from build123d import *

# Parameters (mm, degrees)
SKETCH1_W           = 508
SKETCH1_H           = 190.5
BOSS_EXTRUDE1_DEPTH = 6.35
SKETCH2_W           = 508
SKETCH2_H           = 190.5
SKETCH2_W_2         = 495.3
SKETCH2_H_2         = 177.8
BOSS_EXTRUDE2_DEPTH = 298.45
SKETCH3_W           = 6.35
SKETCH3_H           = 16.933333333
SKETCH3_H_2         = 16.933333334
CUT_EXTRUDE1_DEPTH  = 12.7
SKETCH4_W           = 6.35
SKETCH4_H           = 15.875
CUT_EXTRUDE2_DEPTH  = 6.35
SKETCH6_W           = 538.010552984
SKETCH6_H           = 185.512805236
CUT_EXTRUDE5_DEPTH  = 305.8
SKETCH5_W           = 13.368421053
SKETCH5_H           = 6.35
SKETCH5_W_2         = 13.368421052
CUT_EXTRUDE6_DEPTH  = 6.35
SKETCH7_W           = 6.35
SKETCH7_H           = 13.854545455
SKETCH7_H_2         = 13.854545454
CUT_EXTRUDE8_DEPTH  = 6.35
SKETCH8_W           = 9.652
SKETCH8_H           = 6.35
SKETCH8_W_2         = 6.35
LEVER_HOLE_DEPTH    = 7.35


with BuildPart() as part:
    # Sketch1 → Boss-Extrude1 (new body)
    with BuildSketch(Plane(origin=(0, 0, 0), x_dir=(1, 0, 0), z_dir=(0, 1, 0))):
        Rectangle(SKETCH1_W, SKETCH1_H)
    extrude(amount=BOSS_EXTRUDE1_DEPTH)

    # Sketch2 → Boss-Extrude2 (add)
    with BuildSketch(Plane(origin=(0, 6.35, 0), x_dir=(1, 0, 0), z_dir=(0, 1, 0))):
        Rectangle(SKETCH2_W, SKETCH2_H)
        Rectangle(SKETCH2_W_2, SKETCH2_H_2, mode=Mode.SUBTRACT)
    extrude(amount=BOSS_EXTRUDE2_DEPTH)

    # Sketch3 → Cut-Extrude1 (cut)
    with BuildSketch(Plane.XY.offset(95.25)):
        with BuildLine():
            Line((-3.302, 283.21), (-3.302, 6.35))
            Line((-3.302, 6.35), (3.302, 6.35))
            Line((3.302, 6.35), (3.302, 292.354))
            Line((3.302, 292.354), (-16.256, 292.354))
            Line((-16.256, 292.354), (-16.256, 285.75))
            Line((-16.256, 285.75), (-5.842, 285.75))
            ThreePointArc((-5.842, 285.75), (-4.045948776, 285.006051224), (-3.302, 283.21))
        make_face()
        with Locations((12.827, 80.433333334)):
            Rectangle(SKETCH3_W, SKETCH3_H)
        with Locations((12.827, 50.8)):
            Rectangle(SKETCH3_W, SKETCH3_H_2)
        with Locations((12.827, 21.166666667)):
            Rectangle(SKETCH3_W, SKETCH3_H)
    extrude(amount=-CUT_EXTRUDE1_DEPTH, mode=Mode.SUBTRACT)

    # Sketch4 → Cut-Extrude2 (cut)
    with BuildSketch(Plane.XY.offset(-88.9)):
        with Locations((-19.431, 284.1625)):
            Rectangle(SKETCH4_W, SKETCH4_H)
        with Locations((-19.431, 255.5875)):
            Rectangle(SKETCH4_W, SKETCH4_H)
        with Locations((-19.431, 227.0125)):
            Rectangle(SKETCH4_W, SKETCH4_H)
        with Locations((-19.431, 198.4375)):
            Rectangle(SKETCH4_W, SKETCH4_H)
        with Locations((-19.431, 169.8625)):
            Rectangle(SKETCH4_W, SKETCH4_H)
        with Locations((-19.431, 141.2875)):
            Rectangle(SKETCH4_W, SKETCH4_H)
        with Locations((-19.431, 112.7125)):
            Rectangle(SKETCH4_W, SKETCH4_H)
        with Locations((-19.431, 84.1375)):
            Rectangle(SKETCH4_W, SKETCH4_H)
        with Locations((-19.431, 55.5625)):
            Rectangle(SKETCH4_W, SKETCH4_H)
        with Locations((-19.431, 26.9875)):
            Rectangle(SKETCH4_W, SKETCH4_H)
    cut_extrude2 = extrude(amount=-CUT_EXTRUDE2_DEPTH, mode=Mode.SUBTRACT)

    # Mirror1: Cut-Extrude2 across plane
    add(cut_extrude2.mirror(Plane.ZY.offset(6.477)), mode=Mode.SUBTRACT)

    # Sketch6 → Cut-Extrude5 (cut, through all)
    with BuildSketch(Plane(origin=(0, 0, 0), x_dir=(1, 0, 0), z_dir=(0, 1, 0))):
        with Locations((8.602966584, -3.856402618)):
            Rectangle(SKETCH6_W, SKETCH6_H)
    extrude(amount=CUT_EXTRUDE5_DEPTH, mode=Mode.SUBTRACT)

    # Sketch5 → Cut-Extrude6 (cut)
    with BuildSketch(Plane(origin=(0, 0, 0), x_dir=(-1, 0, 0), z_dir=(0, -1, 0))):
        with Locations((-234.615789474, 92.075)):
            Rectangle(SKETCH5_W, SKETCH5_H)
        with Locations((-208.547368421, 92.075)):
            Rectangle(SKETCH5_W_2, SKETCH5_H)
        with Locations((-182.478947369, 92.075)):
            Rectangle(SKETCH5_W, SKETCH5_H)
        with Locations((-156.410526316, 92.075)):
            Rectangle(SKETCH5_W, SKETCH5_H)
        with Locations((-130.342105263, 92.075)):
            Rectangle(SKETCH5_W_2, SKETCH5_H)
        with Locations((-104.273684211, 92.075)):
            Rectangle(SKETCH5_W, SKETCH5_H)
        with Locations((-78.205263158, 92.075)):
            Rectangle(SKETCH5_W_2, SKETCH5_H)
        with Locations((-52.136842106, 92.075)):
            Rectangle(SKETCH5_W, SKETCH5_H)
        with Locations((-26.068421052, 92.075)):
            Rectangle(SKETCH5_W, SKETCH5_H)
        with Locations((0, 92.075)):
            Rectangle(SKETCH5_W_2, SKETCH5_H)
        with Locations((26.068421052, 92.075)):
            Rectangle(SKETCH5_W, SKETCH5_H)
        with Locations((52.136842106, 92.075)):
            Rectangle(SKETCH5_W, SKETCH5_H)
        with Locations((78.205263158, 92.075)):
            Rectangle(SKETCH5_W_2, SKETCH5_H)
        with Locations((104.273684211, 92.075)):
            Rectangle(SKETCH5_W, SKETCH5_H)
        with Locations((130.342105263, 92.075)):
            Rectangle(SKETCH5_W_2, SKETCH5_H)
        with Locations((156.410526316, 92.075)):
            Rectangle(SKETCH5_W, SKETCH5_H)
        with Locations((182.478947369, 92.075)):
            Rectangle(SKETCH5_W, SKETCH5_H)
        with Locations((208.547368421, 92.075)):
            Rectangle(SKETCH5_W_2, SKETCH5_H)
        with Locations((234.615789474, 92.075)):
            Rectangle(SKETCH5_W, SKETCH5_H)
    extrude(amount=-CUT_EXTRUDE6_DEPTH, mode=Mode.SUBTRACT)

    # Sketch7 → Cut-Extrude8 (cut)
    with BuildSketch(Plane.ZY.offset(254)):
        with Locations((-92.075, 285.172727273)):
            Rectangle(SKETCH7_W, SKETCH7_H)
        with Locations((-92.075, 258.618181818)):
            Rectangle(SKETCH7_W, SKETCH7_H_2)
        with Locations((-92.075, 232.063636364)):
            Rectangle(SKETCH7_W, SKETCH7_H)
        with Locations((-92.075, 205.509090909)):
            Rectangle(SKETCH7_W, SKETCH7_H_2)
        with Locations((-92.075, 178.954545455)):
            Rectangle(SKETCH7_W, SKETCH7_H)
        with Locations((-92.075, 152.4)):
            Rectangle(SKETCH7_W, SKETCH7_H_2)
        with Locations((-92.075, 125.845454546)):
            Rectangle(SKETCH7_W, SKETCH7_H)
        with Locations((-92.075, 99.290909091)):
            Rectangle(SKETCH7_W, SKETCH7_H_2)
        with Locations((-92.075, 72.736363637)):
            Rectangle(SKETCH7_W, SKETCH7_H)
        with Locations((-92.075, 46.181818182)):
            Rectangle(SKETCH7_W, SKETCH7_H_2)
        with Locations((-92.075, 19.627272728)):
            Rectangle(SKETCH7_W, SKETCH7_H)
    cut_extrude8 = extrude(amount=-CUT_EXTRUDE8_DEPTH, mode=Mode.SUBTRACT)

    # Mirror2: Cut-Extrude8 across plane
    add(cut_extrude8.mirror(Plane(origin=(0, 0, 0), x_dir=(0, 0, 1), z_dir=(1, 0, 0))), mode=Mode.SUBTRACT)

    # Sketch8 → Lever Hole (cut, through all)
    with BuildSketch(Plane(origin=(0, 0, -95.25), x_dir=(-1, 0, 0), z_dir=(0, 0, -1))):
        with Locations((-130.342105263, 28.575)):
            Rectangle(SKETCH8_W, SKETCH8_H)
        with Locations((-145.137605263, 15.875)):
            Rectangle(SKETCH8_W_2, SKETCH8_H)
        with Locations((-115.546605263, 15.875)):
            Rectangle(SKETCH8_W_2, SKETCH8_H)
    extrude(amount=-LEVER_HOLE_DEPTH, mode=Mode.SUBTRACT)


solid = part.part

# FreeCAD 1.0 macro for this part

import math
import FreeCAD as App
import Part
import Sketcher
from FreeCAD import Vector
Q = App.Units.Quantity

doc = App.newDocument("Part")
body = doc.addObject("PartDesign::Body", "Body")

# Sketch on XZ plane
sketch1 = body.newObject("Sketcher::SketchObject", "Sketch")
sketch1.AttachmentSupport = (doc.getObject("XZ_Plane"), [""])
sketch1.MapMode = "FlatFace"
sketch1.addGeometry([
    Part.LineSegment(Vector(-254, -95, 0), Vector(-254, 95, 0)),
    Part.LineSegment(Vector(-254, 95, 0), Vector(254, 95, 0)),
    Part.LineSegment(Vector(254, 95, 0), Vector(254, -95, 0)),
    Part.LineSegment(Vector(254, -95, 0), Vector(-254, -95, 0)),
], False)
sketch1.addConstraint([
    Sketcher.Constraint("Coincident", 0, 2, 1, 1),
    Sketcher.Constraint("Coincident", 1, 2, 2, 1),
    Sketcher.Constraint("Coincident", 2, 2, 3, 1),
    Sketcher.Constraint("Coincident", 3, 2, 0, 1),
    Sketcher.Constraint("Vertical", 0),
    Sketcher.Constraint("Horizontal", 1),
    Sketcher.Constraint("Vertical", 2),
    Sketcher.Constraint("Horizontal", 3),
    Sketcher.Constraint("Symmetric", 0, 2, 2, 2, -1, 1),
    Sketcher.Constraint("DistanceX", 1, 1, 1, 2, Q("20 in")),
    Sketcher.Constraint("DistanceY", 0, 1, 0, 2, Q("7.5 in")),
])
pad1 = body.newObject("PartDesign::Pad", "Pad")
pad1.Profile = sketch1
pad1.Length = Q("0.25 in")
pad1.Reversed = True

# Sketch on XZ plane
sketch2 = body.newObject("Sketcher::SketchObject", "Sketch001")
sketch2.AttachmentSupport = (doc.getObject("XZ_Plane"), [""])
sketch2.MapMode = "FlatFace"
sketch2.AttachmentOffset = App.Placement(Vector(0, 0, -0.25 * 25.4), App.Rotation())
sketch2.addGeometry([
    Part.LineSegment(Vector(-254, -95, 0), Vector(-254, 95, 0)),  # 0
    Part.LineSegment(Vector(-254, 95, 0), Vector(254, 95, 0)),  # 1
    Part.LineSegment(Vector(254, 95, 0), Vector(254, -95, 0)),  # 2
    Part.LineSegment(Vector(254, -95, 0), Vector(-254, -95, 0)),  # 3
    Part.LineSegment(Vector(248, 89, 0), Vector(-248, 89, 0)),  # 4
    Part.LineSegment(Vector(-248, 89, 0), Vector(-248, -89, 0)),  # 5
    Part.LineSegment(Vector(-248, -89, 0), Vector(248, -89, 0)),  # 6
    Part.LineSegment(Vector(248, -89, 0), Vector(248, 89, 0)),  # 7
], False)
sketch2.addConstraint([
    Sketcher.Constraint("Coincident", 0, 2, 1, 1),
    Sketcher.Constraint("Coincident", 1, 2, 2, 1),
    Sketcher.Constraint("Coincident", 2, 2, 3, 1),
    Sketcher.Constraint("Coincident", 3, 2, 0, 1),
    Sketcher.Constraint("Coincident", 4, 2, 5, 1),
    Sketcher.Constraint("Coincident", 5, 2, 6, 1),
    Sketcher.Constraint("Coincident", 6, 2, 7, 1),
    Sketcher.Constraint("Coincident", 7, 2, 4, 1),
    Sketcher.Constraint("Vertical", 0),
    Sketcher.Constraint("Horizontal", 1),
    Sketcher.Constraint("Vertical", 2),
    Sketcher.Constraint("Horizontal", 3),
    Sketcher.Constraint("Horizontal", 4),
    Sketcher.Constraint("Vertical", 5),
    Sketcher.Constraint("Horizontal", 6),
    Sketcher.Constraint("Vertical", 7),
    Sketcher.Constraint("Symmetric", 0, 2, 2, 2, -1, 1),
    Sketcher.Constraint("Symmetric", 4, 2, 6, 2, -1, 1),
    Sketcher.Constraint("DistanceX", 1, 1, 1, 2, Q("20 in")),
    Sketcher.Constraint("DistanceY", 5, 2, 5, 1, Q("7 in")),
    Sketcher.Constraint("DistanceX", 4, 2, 4, 1, Q("19.5 in")),
    Sketcher.Constraint("DistanceY", 0, 1, 0, 2, Q("7.5 in")),
])
pad2 = body.newObject("PartDesign::Pad", "Pad001")
pad2.Profile = sketch2
pad2.Length = Q("11.75 in")
pad2.Reversed = True

# Sketch on XY plane
sketch3 = body.newObject("Sketcher::SketchObject", "Sketch002")
sketch3.AttachmentSupport = (doc.getObject("XY_Plane"), [""])
sketch3.MapMode = "FlatFace"
sketch3.AttachmentOffset = App.Placement(Vector(0, 0, 3.75 * 25.4), App.Rotation())
sketch3.addGeometry([
    Part.LineSegment(Vector(-3.3, 283.2, 0), Vector(-3.3, 6.3, 0)),  # 0
    Part.LineSegment(Vector(-3.3, 6.3, 0), Vector(3.3, 6.3, 0)),  # 1
    Part.LineSegment(Vector(3.3, 6.3, 0), Vector(3.3, 292.4, 0)),  # 2
    Part.LineSegment(Vector(3.3, 292.4, 0), Vector(-16.3, 292.4, 0)),  # 3
    Part.LineSegment(Vector(-16.3, 292.4, 0), Vector(-16.3, 285.8, 0)),  # 4
    Part.LineSegment(Vector(-16.3, 285.8, 0), Vector(-5.8, 285.8, 0)),  # 5
    Part.ArcOfCircle(Part.Circle(Vector(-5.8, 283.2, 0), Vector(0, 0, 1), 2.5), math.radians(0), math.radians(90)),  # 6
    Part.LineSegment(Vector(9.7, 88.9, 0), Vector(9.7, 72, 0)),  # 7
    Part.LineSegment(Vector(9.7, 72, 0), Vector(16, 72, 0)),  # 8
    Part.LineSegment(Vector(16, 72, 0), Vector(16, 88.9, 0)),  # 9
    Part.LineSegment(Vector(16, 88.9, 0), Vector(9.7, 88.9, 0)),  # 10
    Part.LineSegment(Vector(9.7, 59.3, 0), Vector(9.7, 42.3, 0)),  # 11
    Part.LineSegment(Vector(9.7, 42.3, 0), Vector(16, 42.3, 0)),  # 12
    Part.LineSegment(Vector(16, 42.3, 0), Vector(16, 59.3, 0)),  # 13
    Part.LineSegment(Vector(16, 59.3, 0), Vector(9.7, 59.3, 0)),  # 14
    Part.LineSegment(Vector(9.7, 29.6, 0), Vector(9.7, 12.7, 0)),  # 15
    Part.LineSegment(Vector(9.7, 12.7, 0), Vector(16, 12.7, 0)),  # 16
    Part.LineSegment(Vector(16, 12.7, 0), Vector(16, 29.6, 0)),  # 17
    Part.LineSegment(Vector(16, 29.6, 0), Vector(9.7, 29.6, 0)),  # 18
], False)
sketch3.addConstraint([
    Sketcher.Constraint("Coincident", 0, 2, 1, 1),
    Sketcher.Constraint("Coincident", 1, 2, 2, 1),
    Sketcher.Constraint("Coincident", 2, 2, 3, 1),
    Sketcher.Constraint("Coincident", 3, 2, 4, 1),
    Sketcher.Constraint("Coincident", 4, 2, 5, 1),
    Sketcher.Constraint("Tangent", 5, 2, 6, 2),
    Sketcher.Constraint("Tangent", 6, 1, 0, 1),
    Sketcher.Constraint("Coincident", 7, 2, 8, 1),
    Sketcher.Constraint("Coincident", 8, 2, 9, 1),
    Sketcher.Constraint("Coincident", 9, 2, 10, 1),
    Sketcher.Constraint("Coincident", 10, 2, 7, 1),
    Sketcher.Constraint("Coincident", 11, 2, 12, 1),
    Sketcher.Constraint("Coincident", 12, 2, 13, 1),
    Sketcher.Constraint("Coincident", 13, 2, 14, 1),
    Sketcher.Constraint("Coincident", 14, 2, 11, 1),
    Sketcher.Constraint("Coincident", 15, 2, 16, 1),
    Sketcher.Constraint("Coincident", 16, 2, 17, 1),
    Sketcher.Constraint("Coincident", 17, 2, 18, 1),
    Sketcher.Constraint("Coincident", 18, 2, 15, 1),
    Sketcher.Constraint("Vertical", 0),
    Sketcher.Constraint("Horizontal", 1),
    Sketcher.Constraint("Vertical", 2),
    Sketcher.Constraint("Horizontal", 3),
    Sketcher.Constraint("Vertical", 4),
    Sketcher.Constraint("Horizontal", 5),
    Sketcher.Constraint("Vertical", 7),
    Sketcher.Constraint("Horizontal", 8),
    Sketcher.Constraint("Vertical", 9),
    Sketcher.Constraint("Horizontal", 10),
    Sketcher.Constraint("Vertical", 11),
    Sketcher.Constraint("Horizontal", 12),
    Sketcher.Constraint("Vertical", 13),
    Sketcher.Constraint("Horizontal", 14),
    Sketcher.Constraint("Vertical", 15),
    Sketcher.Constraint("Horizontal", 16),
    Sketcher.Constraint("Vertical", 17),
    Sketcher.Constraint("Horizontal", 18),
    Sketcher.Constraint("Vertical", 10, 2, 11, 2),
    Sketcher.Constraint("Vertical", 9, 2, 12, 2),
    Sketcher.Constraint("Vertical", 14, 2, 15, 2),
    Sketcher.Constraint("Vertical", 13, 2, 16, 2),
    Sketcher.Constraint("Equal", 1, 4),
    Sketcher.Constraint("Equal", 9, 11),
    Sketcher.Constraint("Equal", 13, 15),
    Sketcher.Constraint("Radius", 6, Q("0.1 in")),
    Sketcher.Constraint("DistanceY", 0, 2, 0, 1, Q("10.9 in")),
    Sketcher.Constraint("DistanceX", 1, 1, 1, 2, Q("0.26 in")),
    Sketcher.Constraint("DistanceX", 3, 2, 3, 1, Q("0.77 in")),
    Sketcher.Constraint("DistanceX", 8, 1, 8, 2, Q("0.25 in")),
    Sketcher.Constraint("DistanceY", -1, 1, 9, 2, Q("3.5 in")),
    Sketcher.Constraint("DistanceY", -1, 1, 15, 2, Q("0.5 in")),
    Sketcher.Constraint("DistanceX", 1, 2, 8, 2, Q("0.5 in")),
    Sketcher.Constraint("DistanceY", 13, 2, 8, 2, Q("0.5 in")),
    Sketcher.Constraint("DistanceY", 17, 2, 12, 2, Q("0.5 in")),
    Sketcher.Constraint("DistanceX", 6, 3, -1, 1, Q("0.23 in")),
    Sketcher.Constraint("DistanceY", -1, 1, 6, 3, Q("11.15 in")),
])
pocket1 = body.newObject("PartDesign::Pocket", "Pocket")
pocket1.Profile = sketch3
pocket1.Length = Q("0.5 in")

# Sketch on XY plane
sketch4 = body.newObject("Sketcher::SketchObject", "Sketch003")
sketch4.AttachmentSupport = (doc.getObject("XY_Plane"), [""])
sketch4.MapMode = "FlatFace"
sketch4.AttachmentOffset = App.Placement(Vector(0, 0, -3.5 * 25.4), App.Rotation())
sketch4.addGeometry([
    Part.LineSegment(Vector(-23, 292, 0), Vector(-23, 276, 0)),  # 0
    Part.LineSegment(Vector(-23, 276, 0), Vector(-16, 276, 0)),  # 1
    Part.LineSegment(Vector(-16, 276, 0), Vector(-16, 292, 0)),  # 2
    Part.LineSegment(Vector(-16, 292, 0), Vector(-23, 292, 0)),  # 3
    Part.LineSegment(Vector(-23, 264, 0), Vector(-23, 248, 0)),  # 4
    Part.LineSegment(Vector(-23, 248, 0), Vector(-16, 248, 0)),  # 5
    Part.LineSegment(Vector(-16, 248, 0), Vector(-16, 264, 0)),  # 6
    Part.LineSegment(Vector(-16, 264, 0), Vector(-23, 264, 0)),  # 7
    Part.LineSegment(Vector(-23, 235, 0), Vector(-23, 219, 0)),  # 8
    Part.LineSegment(Vector(-23, 219, 0), Vector(-16, 219, 0)),  # 9
    Part.LineSegment(Vector(-16, 219, 0), Vector(-16, 235, 0)),  # 10
    Part.LineSegment(Vector(-16, 235, 0), Vector(-23, 235, 0)),  # 11
    Part.LineSegment(Vector(-23, 206, 0), Vector(-23, 190, 0)),  # 12
    Part.LineSegment(Vector(-23, 190, 0), Vector(-16, 190, 0)),  # 13
    Part.LineSegment(Vector(-16, 190, 0), Vector(-16, 206, 0)),  # 14
    Part.LineSegment(Vector(-16, 206, 0), Vector(-23, 206, 0)),  # 15
    Part.LineSegment(Vector(-23, 178, 0), Vector(-23, 162, 0)),  # 16
    Part.LineSegment(Vector(-23, 162, 0), Vector(-16, 162, 0)),  # 17
    Part.LineSegment(Vector(-16, 162, 0), Vector(-16, 178, 0)),  # 18
    Part.LineSegment(Vector(-16, 178, 0), Vector(-23, 178, 0)),  # 19
    Part.LineSegment(Vector(-23, 149, 0), Vector(-23, 133, 0)),  # 20
    Part.LineSegment(Vector(-23, 133, 0), Vector(-16, 133, 0)),  # 21
    Part.LineSegment(Vector(-16, 133, 0), Vector(-16, 149, 0)),  # 22
    Part.LineSegment(Vector(-16, 149, 0), Vector(-23, 149, 0)),  # 23
    Part.LineSegment(Vector(-23, 121, 0), Vector(-23, 105, 0)),  # 24
    Part.LineSegment(Vector(-23, 105, 0), Vector(-16, 105, 0)),  # 25
    Part.LineSegment(Vector(-16, 105, 0), Vector(-16, 121, 0)),  # 26
    Part.LineSegment(Vector(-16, 121, 0), Vector(-23, 121, 0)),  # 27
    Part.LineSegment(Vector(-23, 92, 0), Vector(-23, 76, 0)),  # 28
    Part.LineSegment(Vector(-23, 76, 0), Vector(-16, 76, 0)),  # 29
    Part.LineSegment(Vector(-16, 76, 0), Vector(-16, 92, 0)),  # 30
    Part.LineSegment(Vector(-16, 92, 0), Vector(-23, 92, 0)),  # 31
    Part.LineSegment(Vector(-23, 64, 0), Vector(-23, 48, 0)),  # 32
    Part.LineSegment(Vector(-23, 48, 0), Vector(-16, 48, 0)),  # 33
    Part.LineSegment(Vector(-16, 48, 0), Vector(-16, 64, 0)),  # 34
    Part.LineSegment(Vector(-16, 64, 0), Vector(-23, 64, 0)),  # 35
    Part.LineSegment(Vector(-23, 35, 0), Vector(-23, 19, 0)),  # 36
    Part.LineSegment(Vector(-23, 19, 0), Vector(-16, 19, 0)),  # 37
    Part.LineSegment(Vector(-16, 19, 0), Vector(-16, 35, 0)),  # 38
    Part.LineSegment(Vector(-16, 35, 0), Vector(-23, 35, 0)),  # 39
], False)
sketch4.addConstraint([
    Sketcher.Constraint("Coincident", 0, 2, 1, 1),
    Sketcher.Constraint("Coincident", 1, 2, 2, 1),
    Sketcher.Constraint("Coincident", 2, 2, 3, 1),
    Sketcher.Constraint("Coincident", 3, 2, 0, 1),
    Sketcher.Constraint("Coincident", 4, 2, 5, 1),
    Sketcher.Constraint("Coincident", 5, 2, 6, 1),
    Sketcher.Constraint("Coincident", 6, 2, 7, 1),
    Sketcher.Constraint("Coincident", 7, 2, 4, 1),
    Sketcher.Constraint("Coincident", 8, 2, 9, 1),
    Sketcher.Constraint("Coincident", 9, 2, 10, 1),
    Sketcher.Constraint("Coincident", 10, 2, 11, 1),
    Sketcher.Constraint("Coincident", 11, 2, 8, 1),
    Sketcher.Constraint("Coincident", 12, 2, 13, 1),
    Sketcher.Constraint("Coincident", 13, 2, 14, 1),
    Sketcher.Constraint("Coincident", 14, 2, 15, 1),
    Sketcher.Constraint("Coincident", 15, 2, 12, 1),
    Sketcher.Constraint("Coincident", 16, 2, 17, 1),
    Sketcher.Constraint("Coincident", 17, 2, 18, 1),
    Sketcher.Constraint("Coincident", 18, 2, 19, 1),
    Sketcher.Constraint("Coincident", 19, 2, 16, 1),
    Sketcher.Constraint("Coincident", 20, 2, 21, 1),
    Sketcher.Constraint("Coincident", 21, 2, 22, 1),
    Sketcher.Constraint("Coincident", 22, 2, 23, 1),
    Sketcher.Constraint("Coincident", 23, 2, 20, 1),
    Sketcher.Constraint("Coincident", 24, 2, 25, 1),
    Sketcher.Constraint("Coincident", 25, 2, 26, 1),
    Sketcher.Constraint("Coincident", 26, 2, 27, 1),
    Sketcher.Constraint("Coincident", 27, 2, 24, 1),
    Sketcher.Constraint("Coincident", 28, 2, 29, 1),
    Sketcher.Constraint("Coincident", 29, 2, 30, 1),
    Sketcher.Constraint("Coincident", 30, 2, 31, 1),
    Sketcher.Constraint("Coincident", 31, 2, 28, 1),
    Sketcher.Constraint("Coincident", 32, 2, 33, 1),
    Sketcher.Constraint("Coincident", 33, 2, 34, 1),
    Sketcher.Constraint("Coincident", 34, 2, 35, 1),
    Sketcher.Constraint("Coincident", 35, 2, 32, 1),
    Sketcher.Constraint("Coincident", 36, 2, 37, 1),
    Sketcher.Constraint("Coincident", 37, 2, 38, 1),
    Sketcher.Constraint("Coincident", 38, 2, 39, 1),
    Sketcher.Constraint("Coincident", 39, 2, 36, 1),
    Sketcher.Constraint("Vertical", 0),
    Sketcher.Constraint("Horizontal", 1),
    Sketcher.Constraint("Vertical", 2),
    Sketcher.Constraint("Horizontal", 3),
    Sketcher.Constraint("Vertical", 4),
    Sketcher.Constraint("Horizontal", 5),
    Sketcher.Constraint("Vertical", 6),
    Sketcher.Constraint("Horizontal", 7),
    Sketcher.Constraint("Vertical", 8),
    Sketcher.Constraint("Horizontal", 9),
    Sketcher.Constraint("Vertical", 10),
    Sketcher.Constraint("Horizontal", 11),
    Sketcher.Constraint("Vertical", 12),
    Sketcher.Constraint("Horizontal", 13),
    Sketcher.Constraint("Vertical", 14),
    Sketcher.Constraint("Horizontal", 15),
    Sketcher.Constraint("Vertical", 16),
    Sketcher.Constraint("Horizontal", 17),
    Sketcher.Constraint("Vertical", 18),
    Sketcher.Constraint("Horizontal", 19),
    Sketcher.Constraint("Vertical", 20),
    Sketcher.Constraint("Horizontal", 21),
    Sketcher.Constraint("Vertical", 22),
    Sketcher.Constraint("Horizontal", 23),
    Sketcher.Constraint("Vertical", 24),
    Sketcher.Constraint("Horizontal", 25),
    Sketcher.Constraint("Vertical", 26),
    Sketcher.Constraint("Horizontal", 27),
    Sketcher.Constraint("Vertical", 28),
    Sketcher.Constraint("Horizontal", 29),
    Sketcher.Constraint("Vertical", 30),
    Sketcher.Constraint("Horizontal", 31),
    Sketcher.Constraint("Vertical", 32),
    Sketcher.Constraint("Horizontal", 33),
    Sketcher.Constraint("Vertical", 34),
    Sketcher.Constraint("Horizontal", 35),
    Sketcher.Constraint("Vertical", 36),
    Sketcher.Constraint("Horizontal", 37),
    Sketcher.Constraint("Vertical", 38),
    Sketcher.Constraint("Horizontal", 39),
    Sketcher.Constraint("Vertical", 3, 2, 4, 2),
    Sketcher.Constraint("Vertical", 2, 2, 5, 2),
    Sketcher.Constraint("Vertical", 7, 2, 8, 2),
    Sketcher.Constraint("Vertical", 6, 2, 9, 2),
    Sketcher.Constraint("Vertical", 11, 2, 12, 2),
    Sketcher.Constraint("Vertical", 10, 2, 13, 2),
    Sketcher.Constraint("Vertical", 15, 2, 16, 2),
    Sketcher.Constraint("Vertical", 14, 2, 17, 2),
    Sketcher.Constraint("Vertical", 19, 2, 20, 2),
    Sketcher.Constraint("Vertical", 18, 2, 21, 2),
    Sketcher.Constraint("Vertical", 23, 2, 24, 2),
    Sketcher.Constraint("Vertical", 22, 2, 25, 2),
    Sketcher.Constraint("Vertical", 27, 2, 28, 2),
    Sketcher.Constraint("Vertical", 26, 2, 29, 2),
    Sketcher.Constraint("Vertical", 31, 2, 32, 2),
    Sketcher.Constraint("Vertical", 30, 2, 33, 2),
    Sketcher.Constraint("Vertical", 35, 2, 36, 2),
    Sketcher.Constraint("Vertical", 34, 2, 37, 2),
    Sketcher.Constraint("Equal", 2, 4),
    Sketcher.Constraint("Equal", 6, 8),
    Sketcher.Constraint("Equal", 10, 12),
    Sketcher.Constraint("Equal", 14, 16),
    Sketcher.Constraint("Equal", 18, 20),
    Sketcher.Constraint("Equal", 22, 24),
    Sketcher.Constraint("Equal", 26, 28),
    Sketcher.Constraint("Equal", 30, 32),
    Sketcher.Constraint("Equal", 34, 36),
    Sketcher.Constraint("DistanceY", -1, 1, 18, 2, Q("7 in")),
    Sketcher.Constraint("DistanceY", -1, 1, 28, 2, Q("3 in")),
    Sketcher.Constraint("DistanceX", 1, 1, 1, 2, Q("0.25 in")),
    Sketcher.Constraint("DistanceY", -1, 1, 2, 2, Q("11.5 in")),
    Sketcher.Constraint("DistanceY", -1, 1, 12, 2, Q("7.5 in")),
    Sketcher.Constraint("DistanceY", -1, 1, 34, 2, Q("2.5 in")),
    Sketcher.Constraint("DistanceY", 6, 2, 1, 2, Q("0.5 in")),
    Sketcher.Constraint("DistanceY", 10, 2, 5, 2, Q("0.5 in")),
    Sketcher.Constraint("DistanceY", 14, 2, 9, 2, Q("0.5 in")),
    Sketcher.Constraint("DistanceY", 22, 2, 17, 2, Q("0.5 in")),
    Sketcher.Constraint("DistanceY", 26, 2, 21, 2, Q("0.5 in")),
    Sketcher.Constraint("DistanceY", 38, 2, 33, 2, Q("0.5 in")),
    Sketcher.Constraint("DistanceX", 0, 2, -1, 1, Q("0.89 in")),
])
pocket2 = body.newObject("PartDesign::Pocket", "Pocket001")
pocket2.Profile = sketch4
pocket2.Length = Q("0.25 in")
doc.recompute()

datumplane = body.newObject("PartDesign::Plane", "DatumPlane")
datumplane.AttachmentSupport = (doc.getObject("YZ_Plane"), [""])
datumplane.MapMode = "FlatFace"
datumplane.AttachmentOffset = App.Placement(Vector(0, 0, -0.255 * 25.4), App.Rotation())
mirrored = body.newObject("PartDesign::Mirrored", "Mirrored")
mirrored.Originals = [pocket2]
mirrored.MirrorPlane = (datumplane, [""])
body.Tip = mirrored

# Sketch on XZ plane
sketch5 = body.newObject("Sketcher::SketchObject", "Sketch004")
sketch5.AttachmentSupport = (doc.getObject("XZ_Plane"), [""])
sketch5.MapMode = "FlatFace"
sketch5.addGeometry([
    Part.LineSegment(Vector(-260, -89, 0), Vector(-260, 97, 0)),
    Part.LineSegment(Vector(-260, 97, 0), Vector(278, 97, 0)),
    Part.LineSegment(Vector(278, 97, 0), Vector(278, -89, 0)),
    Part.LineSegment(Vector(278, -89, 0), Vector(-260, -89, 0)),
], False)
sketch5.addConstraint([
    Sketcher.Constraint("Coincident", 0, 2, 1, 1),
    Sketcher.Constraint("Coincident", 1, 2, 2, 1),
    Sketcher.Constraint("Coincident", 2, 2, 3, 1),
    Sketcher.Constraint("Coincident", 3, 2, 0, 1),
    Sketcher.Constraint("Vertical", 0),
    Sketcher.Constraint("Horizontal", 1),
    Sketcher.Constraint("Vertical", 2),
    Sketcher.Constraint("Horizontal", 3),
    Sketcher.Constraint("DistanceY", 2, 2, -1, 1, Q("3.5 in")),
    Sketcher.Constraint("DistanceX", 1, 1, 1, 2, 538.010553),
    Sketcher.Constraint("DistanceY", 0, 1, 0, 2, 185.512805),
    Sketcher.Constraint("DistanceX", 0, 2, -1, 1, 260.40231),
])
pocket3 = body.newObject("PartDesign::Pocket", "Pocket002")
pocket3.Profile = sketch5
pocket3.Type = "ThroughAll"

# Sketch on XZ plane
sketch6 = body.newObject("Sketcher::SketchObject", "Sketch005")
sketch6.AttachmentSupport = (doc.getObject("XZ_Plane"), [""])
sketch6.MapMode = "FlatFace"
sketch6.addGeometry([
    Part.LineSegment(Vector(241, -95, 0), Vector(241, -89, 0)),  # 0
    Part.LineSegment(Vector(241, -89, 0), Vector(228, -89, 0)),  # 1
    Part.LineSegment(Vector(228, -89, 0), Vector(228, -95, 0)),  # 2
    Part.LineSegment(Vector(228, -95, 0), Vector(241, -95, 0)),  # 3
    Part.LineSegment(Vector(215, -95, 0), Vector(215, -89, 0)),  # 4
    Part.LineSegment(Vector(215, -89, 0), Vector(202, -89, 0)),  # 5
    Part.LineSegment(Vector(202, -89, 0), Vector(202, -95, 0)),  # 6
    Part.LineSegment(Vector(202, -95, 0), Vector(215, -95, 0)),  # 7
    Part.LineSegment(Vector(189, -95, 0), Vector(189, -89, 0)),  # 8
    Part.LineSegment(Vector(189, -89, 0), Vector(176, -89, 0)),  # 9
    Part.LineSegment(Vector(176, -89, 0), Vector(176, -95, 0)),  # 10
    Part.LineSegment(Vector(176, -95, 0), Vector(189, -95, 0)),  # 11
    Part.LineSegment(Vector(163, -95, 0), Vector(163, -89, 0)),  # 12
    Part.LineSegment(Vector(163, -89, 0), Vector(150, -89, 0)),  # 13
    Part.LineSegment(Vector(150, -89, 0), Vector(150, -95, 0)),  # 14
    Part.LineSegment(Vector(150, -95, 0), Vector(163, -95, 0)),  # 15
    Part.LineSegment(Vector(137, -95, 0), Vector(137, -89, 0)),  # 16
    Part.LineSegment(Vector(137, -89, 0), Vector(124, -89, 0)),  # 17
    Part.LineSegment(Vector(124, -89, 0), Vector(124, -95, 0)),  # 18
    Part.LineSegment(Vector(124, -95, 0), Vector(137, -95, 0)),  # 19
    Part.LineSegment(Vector(111, -95, 0), Vector(111, -89, 0)),  # 20
    Part.LineSegment(Vector(111, -89, 0), Vector(98, -89, 0)),  # 21
    Part.LineSegment(Vector(98, -89, 0), Vector(98, -95, 0)),  # 22
    Part.LineSegment(Vector(98, -95, 0), Vector(111, -95, 0)),  # 23
    Part.LineSegment(Vector(85, -95, 0), Vector(85, -89, 0)),  # 24
    Part.LineSegment(Vector(85, -89, 0), Vector(72, -89, 0)),  # 25
    Part.LineSegment(Vector(72, -89, 0), Vector(72, -95, 0)),  # 26
    Part.LineSegment(Vector(72, -95, 0), Vector(85, -95, 0)),  # 27
    Part.LineSegment(Vector(59, -95, 0), Vector(59, -89, 0)),  # 28
    Part.LineSegment(Vector(59, -89, 0), Vector(45, -89, 0)),  # 29
    Part.LineSegment(Vector(45, -89, 0), Vector(45, -95, 0)),  # 30
    Part.LineSegment(Vector(45, -95, 0), Vector(59, -95, 0)),  # 31
    Part.LineSegment(Vector(33, -95, 0), Vector(33, -89, 0)),  # 32
    Part.LineSegment(Vector(33, -89, 0), Vector(19, -89, 0)),  # 33
    Part.LineSegment(Vector(19, -89, 0), Vector(19, -95, 0)),  # 34
    Part.LineSegment(Vector(19, -95, 0), Vector(33, -95, 0)),  # 35
    Part.LineSegment(Vector(7, -95, 0), Vector(7, -89, 0)),  # 36
    Part.LineSegment(Vector(7, -89, 0), Vector(-7, -89, 0)),  # 37
    Part.LineSegment(Vector(-7, -89, 0), Vector(-7, -95, 0)),  # 38
    Part.LineSegment(Vector(-7, -95, 0), Vector(7, -95, 0)),  # 39
    Part.LineSegment(Vector(-19, -95, 0), Vector(-19, -89, 0)),  # 40
    Part.LineSegment(Vector(-19, -89, 0), Vector(-33, -89, 0)),  # 41
    Part.LineSegment(Vector(-33, -89, 0), Vector(-33, -95, 0)),  # 42
    Part.LineSegment(Vector(-33, -95, 0), Vector(-19, -95, 0)),  # 43
    Part.LineSegment(Vector(-45, -95, 0), Vector(-45, -89, 0)),  # 44
    Part.LineSegment(Vector(-45, -89, 0), Vector(-59, -89, 0)),  # 45
    Part.LineSegment(Vector(-59, -89, 0), Vector(-59, -95, 0)),  # 46
    Part.LineSegment(Vector(-59, -95, 0), Vector(-45, -95, 0)),  # 47
    Part.LineSegment(Vector(-72, -95, 0), Vector(-72, -89, 0)),  # 48
    Part.LineSegment(Vector(-72, -89, 0), Vector(-85, -89, 0)),  # 49
    Part.LineSegment(Vector(-85, -89, 0), Vector(-85, -95, 0)),  # 50
    Part.LineSegment(Vector(-85, -95, 0), Vector(-72, -95, 0)),  # 51
    Part.LineSegment(Vector(-98, -95, 0), Vector(-98, -89, 0)),  # 52
    Part.LineSegment(Vector(-98, -89, 0), Vector(-111, -89, 0)),  # 53
    Part.LineSegment(Vector(-111, -89, 0), Vector(-111, -95, 0)),  # 54
    Part.LineSegment(Vector(-111, -95, 0), Vector(-98, -95, 0)),  # 55
    Part.LineSegment(Vector(-124, -95, 0), Vector(-124, -89, 0)),  # 56
    Part.LineSegment(Vector(-124, -89, 0), Vector(-137, -89, 0)),  # 57
    Part.LineSegment(Vector(-137, -89, 0), Vector(-137, -95, 0)),  # 58
    Part.LineSegment(Vector(-137, -95, 0), Vector(-124, -95, 0)),  # 59
    Part.LineSegment(Vector(-150, -95, 0), Vector(-150, -89, 0)),  # 60
    Part.LineSegment(Vector(-150, -89, 0), Vector(-163, -89, 0)),  # 61
    Part.LineSegment(Vector(-163, -89, 0), Vector(-163, -95, 0)),  # 62
    Part.LineSegment(Vector(-163, -95, 0), Vector(-150, -95, 0)),  # 63
    Part.LineSegment(Vector(-176, -95, 0), Vector(-176, -89, 0)),  # 64
    Part.LineSegment(Vector(-176, -89, 0), Vector(-189, -89, 0)),  # 65
    Part.LineSegment(Vector(-189, -89, 0), Vector(-189, -95, 0)),  # 66
    Part.LineSegment(Vector(-189, -95, 0), Vector(-176, -95, 0)),  # 67
    Part.LineSegment(Vector(-202, -95, 0), Vector(-202, -89, 0)),  # 68
    Part.LineSegment(Vector(-202, -89, 0), Vector(-215, -89, 0)),  # 69
    Part.LineSegment(Vector(-215, -89, 0), Vector(-215, -95, 0)),  # 70
    Part.LineSegment(Vector(-215, -95, 0), Vector(-202, -95, 0)),  # 71
    Part.LineSegment(Vector(-228, -95, 0), Vector(-228, -89, 0)),  # 72
    Part.LineSegment(Vector(-228, -89, 0), Vector(-241, -89, 0)),  # 73
    Part.LineSegment(Vector(-241, -89, 0), Vector(-241, -95, 0)),  # 74
    Part.LineSegment(Vector(-241, -95, 0), Vector(-228, -95, 0)),  # 75
], False)
sketch6.addConstraint([
    Sketcher.Constraint("Coincident", 0, 2, 1, 1),
    Sketcher.Constraint("Coincident", 1, 2, 2, 1),
    Sketcher.Constraint("Coincident", 2, 2, 3, 1),
    Sketcher.Constraint("Coincident", 3, 2, 0, 1),
    Sketcher.Constraint("Coincident", 4, 2, 5, 1),
    Sketcher.Constraint("Coincident", 5, 2, 6, 1),
    Sketcher.Constraint("Coincident", 6, 2, 7, 1),
    Sketcher.Constraint("Coincident", 7, 2, 4, 1),
    Sketcher.Constraint("Coincident", 8, 2, 9, 1),
    Sketcher.Constraint("Coincident", 9, 2, 10, 1),
    Sketcher.Constraint("Coincident", 10, 2, 11, 1),
    Sketcher.Constraint("Coincident", 11, 2, 8, 1),
    Sketcher.Constraint("Coincident", 12, 2, 13, 1),
    Sketcher.Constraint("Coincident", 13, 2, 14, 1),
    Sketcher.Constraint("Coincident", 14, 2, 15, 1),
    Sketcher.Constraint("Coincident", 15, 2, 12, 1),
    Sketcher.Constraint("Coincident", 16, 2, 17, 1),
    Sketcher.Constraint("Coincident", 17, 2, 18, 1),
    Sketcher.Constraint("Coincident", 18, 2, 19, 1),
    Sketcher.Constraint("Coincident", 19, 2, 16, 1),
    Sketcher.Constraint("Coincident", 20, 2, 21, 1),
    Sketcher.Constraint("Coincident", 21, 2, 22, 1),
    Sketcher.Constraint("Coincident", 22, 2, 23, 1),
    Sketcher.Constraint("Coincident", 23, 2, 20, 1),
    Sketcher.Constraint("Coincident", 24, 2, 25, 1),
    Sketcher.Constraint("Coincident", 25, 2, 26, 1),
    Sketcher.Constraint("Coincident", 26, 2, 27, 1),
    Sketcher.Constraint("Coincident", 27, 2, 24, 1),
    Sketcher.Constraint("Coincident", 28, 2, 29, 1),
    Sketcher.Constraint("Coincident", 29, 2, 30, 1),
    Sketcher.Constraint("Coincident", 30, 2, 31, 1),
    Sketcher.Constraint("Coincident", 31, 2, 28, 1),
    Sketcher.Constraint("Coincident", 32, 2, 33, 1),
    Sketcher.Constraint("Coincident", 33, 2, 34, 1),
    Sketcher.Constraint("Coincident", 34, 2, 35, 1),
    Sketcher.Constraint("Coincident", 35, 2, 32, 1),
    Sketcher.Constraint("Coincident", 36, 2, 37, 1),
    Sketcher.Constraint("Coincident", 37, 2, 38, 1),
    Sketcher.Constraint("Coincident", 38, 2, 39, 1),
    Sketcher.Constraint("Coincident", 39, 2, 36, 1),
    Sketcher.Constraint("Coincident", 40, 2, 41, 1),
    Sketcher.Constraint("Coincident", 41, 2, 42, 1),
    Sketcher.Constraint("Coincident", 42, 2, 43, 1),
    Sketcher.Constraint("Coincident", 43, 2, 40, 1),
    Sketcher.Constraint("Coincident", 44, 2, 45, 1),
    Sketcher.Constraint("Coincident", 45, 2, 46, 1),
    Sketcher.Constraint("Coincident", 46, 2, 47, 1),
    Sketcher.Constraint("Coincident", 47, 2, 44, 1),
    Sketcher.Constraint("Coincident", 48, 2, 49, 1),
    Sketcher.Constraint("Coincident", 49, 2, 50, 1),
    Sketcher.Constraint("Coincident", 50, 2, 51, 1),
    Sketcher.Constraint("Coincident", 51, 2, 48, 1),
    Sketcher.Constraint("Coincident", 52, 2, 53, 1),
    Sketcher.Constraint("Coincident", 53, 2, 54, 1),
    Sketcher.Constraint("Coincident", 54, 2, 55, 1),
    Sketcher.Constraint("Coincident", 55, 2, 52, 1),
    Sketcher.Constraint("Coincident", 56, 2, 57, 1),
    Sketcher.Constraint("Coincident", 57, 2, 58, 1),
    Sketcher.Constraint("Coincident", 58, 2, 59, 1),
    Sketcher.Constraint("Coincident", 59, 2, 56, 1),
    Sketcher.Constraint("Coincident", 60, 2, 61, 1),
    Sketcher.Constraint("Coincident", 61, 2, 62, 1),
    Sketcher.Constraint("Coincident", 62, 2, 63, 1),
    Sketcher.Constraint("Coincident", 63, 2, 60, 1),
    Sketcher.Constraint("Coincident", 64, 2, 65, 1),
    Sketcher.Constraint("Coincident", 65, 2, 66, 1),
    Sketcher.Constraint("Coincident", 66, 2, 67, 1),
    Sketcher.Constraint("Coincident", 67, 2, 64, 1),
    Sketcher.Constraint("Coincident", 68, 2, 69, 1),
    Sketcher.Constraint("Coincident", 69, 2, 70, 1),
    Sketcher.Constraint("Coincident", 70, 2, 71, 1),
    Sketcher.Constraint("Coincident", 71, 2, 68, 1),
    Sketcher.Constraint("Coincident", 72, 2, 73, 1),
    Sketcher.Constraint("Coincident", 73, 2, 74, 1),
    Sketcher.Constraint("Coincident", 74, 2, 75, 1),
    Sketcher.Constraint("Coincident", 75, 2, 72, 1),
    Sketcher.Constraint("Vertical", 0),
    Sketcher.Constraint("Horizontal", 1),
    Sketcher.Constraint("Vertical", 2),
    Sketcher.Constraint("Horizontal", 3),
    Sketcher.Constraint("Vertical", 4),
    Sketcher.Constraint("Horizontal", 5),
    Sketcher.Constraint("Vertical", 6),
    Sketcher.Constraint("Horizontal", 7),
    Sketcher.Constraint("Vertical", 8),
    Sketcher.Constraint("Horizontal", 9),
    Sketcher.Constraint("Vertical", 10),
    Sketcher.Constraint("Horizontal", 11),
    Sketcher.Constraint("Vertical", 12),
    Sketcher.Constraint("Horizontal", 13),
    Sketcher.Constraint("Vertical", 14),
    Sketcher.Constraint("Horizontal", 15),
    Sketcher.Constraint("Vertical", 16),
    Sketcher.Constraint("Horizontal", 17),
    Sketcher.Constraint("Vertical", 18),
    Sketcher.Constraint("Horizontal", 19),
    Sketcher.Constraint("Vertical", 20),
    Sketcher.Constraint("Horizontal", 21),
    Sketcher.Constraint("Vertical", 22),
    Sketcher.Constraint("Horizontal", 23),
    Sketcher.Constraint("Vertical", 24),
    Sketcher.Constraint("Horizontal", 25),
    Sketcher.Constraint("Vertical", 26),
    Sketcher.Constraint("Horizontal", 27),
    Sketcher.Constraint("Vertical", 28),
    Sketcher.Constraint("Horizontal", 29),
    Sketcher.Constraint("Vertical", 30),
    Sketcher.Constraint("Horizontal", 31),
    Sketcher.Constraint("Vertical", 32),
    Sketcher.Constraint("Horizontal", 33),
    Sketcher.Constraint("Vertical", 34),
    Sketcher.Constraint("Horizontal", 35),
    Sketcher.Constraint("Vertical", 36),
    Sketcher.Constraint("Horizontal", 37),
    Sketcher.Constraint("Vertical", 38),
    Sketcher.Constraint("Horizontal", 39),
    Sketcher.Constraint("Vertical", 40),
    Sketcher.Constraint("Horizontal", 41),
    Sketcher.Constraint("Vertical", 42),
    Sketcher.Constraint("Horizontal", 43),
    Sketcher.Constraint("Vertical", 44),
    Sketcher.Constraint("Horizontal", 45),
    Sketcher.Constraint("Vertical", 46),
    Sketcher.Constraint("Horizontal", 47),
    Sketcher.Constraint("Vertical", 48),
    Sketcher.Constraint("Horizontal", 49),
    Sketcher.Constraint("Vertical", 50),
    Sketcher.Constraint("Horizontal", 51),
    Sketcher.Constraint("Vertical", 52),
    Sketcher.Constraint("Horizontal", 53),
    Sketcher.Constraint("Vertical", 54),
    Sketcher.Constraint("Horizontal", 55),
    Sketcher.Constraint("Vertical", 56),
    Sketcher.Constraint("Horizontal", 57),
    Sketcher.Constraint("Vertical", 58),
    Sketcher.Constraint("Horizontal", 59),
    Sketcher.Constraint("Vertical", 60),
    Sketcher.Constraint("Horizontal", 61),
    Sketcher.Constraint("Vertical", 62),
    Sketcher.Constraint("Horizontal", 63),
    Sketcher.Constraint("Vertical", 64),
    Sketcher.Constraint("Horizontal", 65),
    Sketcher.Constraint("Vertical", 66),
    Sketcher.Constraint("Horizontal", 67),
    Sketcher.Constraint("Vertical", 68),
    Sketcher.Constraint("Horizontal", 69),
    Sketcher.Constraint("Vertical", 70),
    Sketcher.Constraint("Horizontal", 71),
    Sketcher.Constraint("Vertical", 72),
    Sketcher.Constraint("Horizontal", 73),
    Sketcher.Constraint("Vertical", 74),
    Sketcher.Constraint("Horizontal", 75),
    Sketcher.Constraint("Symmetric", 33, 2, 40, 2, -2),
    Sketcher.Constraint("Symmetric", 35, 2, 42, 2, -2),
    Sketcher.Constraint("Symmetric", 29, 2, 44, 2, -2),
    Sketcher.Constraint("Symmetric", 31, 2, 46, 2, -2),
    Sketcher.Constraint("Symmetric", 25, 2, 48, 2, -2),
    Sketcher.Constraint("Symmetric", 27, 2, 50, 2, -2),
    Sketcher.Constraint("Symmetric", 21, 2, 52, 2, -2),
    Sketcher.Constraint("Symmetric", 23, 2, 54, 2, -2),
    Sketcher.Constraint("Symmetric", 17, 2, 56, 2, -2),
    Sketcher.Constraint("Symmetric", 19, 2, 58, 2, -2),
    Sketcher.Constraint("Symmetric", 13, 2, 60, 2, -2),
    Sketcher.Constraint("Symmetric", 15, 2, 62, 2, -2),
    Sketcher.Constraint("Symmetric", 9, 2, 64, 2, -2),
    Sketcher.Constraint("Symmetric", 11, 2, 66, 2, -2),
    Sketcher.Constraint("Symmetric", 5, 2, 68, 2, -2),
    Sketcher.Constraint("Symmetric", 7, 2, 70, 2, -2),
    Sketcher.Constraint("Symmetric", 1, 2, 72, 2, -2),
    Sketcher.Constraint("Symmetric", 3, 2, 74, 2, -2),
    Sketcher.Constraint("Horizontal", 1, 2, 4, 2),
    Sketcher.Constraint("Horizontal", 3, 2, 6, 2),
    Sketcher.Constraint("Horizontal", 5, 2, 8, 2),
    Sketcher.Constraint("Horizontal", 7, 2, 10, 2),
    Sketcher.Constraint("Horizontal", 9, 2, 12, 2),
    Sketcher.Constraint("Horizontal", 11, 2, 14, 2),
    Sketcher.Constraint("Horizontal", 13, 2, 16, 2),
    Sketcher.Constraint("Horizontal", 15, 2, 18, 2),
    Sketcher.Constraint("Horizontal", 17, 2, 20, 2),
    Sketcher.Constraint("Horizontal", 19, 2, 22, 2),
    Sketcher.Constraint("Horizontal", 21, 2, 24, 2),
    Sketcher.Constraint("Horizontal", 23, 2, 26, 2),
    Sketcher.Constraint("Horizontal", 25, 2, 28, 2),
    Sketcher.Constraint("Horizontal", 27, 2, 30, 2),
    Sketcher.Constraint("Horizontal", 29, 2, 32, 2),
    Sketcher.Constraint("Horizontal", 31, 2, 34, 2),
    Sketcher.Constraint("Horizontal", 33, 2, 36, 2),
    Sketcher.Constraint("Horizontal", 35, 2, 38, 2),
    Sketcher.Constraint("Equal", 3, 5),
    Sketcher.Constraint("Equal", 7, 9),
    Sketcher.Constraint("Equal", 11, 13),
    Sketcher.Constraint("Equal", 15, 17),
    Sketcher.Constraint("Equal", 19, 21),
    Sketcher.Constraint("Equal", 23, 25),
    Sketcher.Constraint("Equal", 27, 29),
    Sketcher.Constraint("Equal", 31, 33),
    Sketcher.Constraint("Equal", 35, 37),
    Sketcher.Constraint("DistanceY", 0, 1, 0, 2, Q("0.25 in")),
    Sketcher.Constraint("DistanceX", -1, 1, 0, 2, Q("9.5 in")),
    Sketcher.Constraint("DistanceY", 0, 2, -1, 1, Q("3.5 in")),
    Sketcher.Constraint("DistanceX", 1, 2, 1, 1, 13.368421),
    Sketcher.Constraint("DistanceX", -1, 1, 4, 2, 215.231579),
    Sketcher.Constraint("DistanceX", -1, 1, 29, 2, 45.452632),
    Sketcher.Constraint("DistanceX", -1, 1, 32, 2, 32.752632),
    Sketcher.Constraint("DistanceX", -1, 1, 36, 2, 6.684211),
    Sketcher.Constraint("DistanceX", -1, 1, 8, 2, 189.163158),
    Sketcher.Constraint("DistanceX", -1, 1, 12, 2, 163.094737),
    Sketcher.Constraint("DistanceX", -1, 1, 16, 2, 137.026316),
    Sketcher.Constraint("DistanceX", -1, 1, 20, 2, 110.957895),
    Sketcher.Constraint("DistanceX", -1, 1, 24, 2, 84.889474),
])
pocket4 = body.newObject("PartDesign::Pocket", "Pocket003")
pocket4.Profile = sketch6
pocket4.Length = Q("0.25 in")

# Sketch on YZ plane
sketch7 = body.newObject("Sketcher::SketchObject", "Sketch006")
sketch7.AttachmentSupport = (doc.getObject("YZ_Plane"), [""])
sketch7.MapMode = "FlatFace"
sketch7.AttachmentOffset = App.Placement(Vector(0, 0, -10 * 25.4), App.Rotation())
sketch7.addGeometry([
    Part.LineSegment(Vector(292, -95, 0), Vector(278, -95, 0)),  # 0
    Part.LineSegment(Vector(278, -95, 0), Vector(278, -89, 0)),  # 1
    Part.LineSegment(Vector(278, -89, 0), Vector(292, -89, 0)),  # 2
    Part.LineSegment(Vector(292, -89, 0), Vector(292, -95, 0)),  # 3
    Part.LineSegment(Vector(266, -95, 0), Vector(252, -95, 0)),  # 4
    Part.LineSegment(Vector(252, -95, 0), Vector(252, -89, 0)),  # 5
    Part.LineSegment(Vector(252, -89, 0), Vector(266, -89, 0)),  # 6
    Part.LineSegment(Vector(266, -89, 0), Vector(266, -95, 0)),  # 7
    Part.LineSegment(Vector(239, -95, 0), Vector(225, -95, 0)),  # 8
    Part.LineSegment(Vector(225, -95, 0), Vector(225, -89, 0)),  # 9
    Part.LineSegment(Vector(225, -89, 0), Vector(239, -89, 0)),  # 10
    Part.LineSegment(Vector(239, -89, 0), Vector(239, -95, 0)),  # 11
    Part.LineSegment(Vector(212, -95, 0), Vector(199, -95, 0)),  # 12
    Part.LineSegment(Vector(199, -95, 0), Vector(199, -89, 0)),  # 13
    Part.LineSegment(Vector(199, -89, 0), Vector(212, -89, 0)),  # 14
    Part.LineSegment(Vector(212, -89, 0), Vector(212, -95, 0)),  # 15
    Part.LineSegment(Vector(186, -95, 0), Vector(172, -95, 0)),  # 16
    Part.LineSegment(Vector(172, -95, 0), Vector(172, -89, 0)),  # 17
    Part.LineSegment(Vector(172, -89, 0), Vector(186, -89, 0)),  # 18
    Part.LineSegment(Vector(186, -89, 0), Vector(186, -95, 0)),  # 19
    Part.LineSegment(Vector(159, -95, 0), Vector(145, -95, 0)),  # 20
    Part.LineSegment(Vector(145, -95, 0), Vector(145, -89, 0)),  # 21
    Part.LineSegment(Vector(145, -89, 0), Vector(159, -89, 0)),  # 22
    Part.LineSegment(Vector(159, -89, 0), Vector(159, -95, 0)),  # 23
    Part.LineSegment(Vector(133, -95, 0), Vector(119, -95, 0)),  # 24
    Part.LineSegment(Vector(119, -95, 0), Vector(119, -89, 0)),  # 25
    Part.LineSegment(Vector(119, -89, 0), Vector(133, -89, 0)),  # 26
    Part.LineSegment(Vector(133, -89, 0), Vector(133, -95, 0)),  # 27
    Part.LineSegment(Vector(106, -95, 0), Vector(92, -95, 0)),  # 28
    Part.LineSegment(Vector(92, -95, 0), Vector(92, -89, 0)),  # 29
    Part.LineSegment(Vector(92, -89, 0), Vector(106, -89, 0)),  # 30
    Part.LineSegment(Vector(106, -89, 0), Vector(106, -95, 0)),  # 31
    Part.LineSegment(Vector(80, -95, 0), Vector(66, -95, 0)),  # 32
    Part.LineSegment(Vector(66, -95, 0), Vector(66, -89, 0)),  # 33
    Part.LineSegment(Vector(66, -89, 0), Vector(80, -89, 0)),  # 34
    Part.LineSegment(Vector(80, -89, 0), Vector(80, -95, 0)),  # 35
    Part.LineSegment(Vector(53, -95, 0), Vector(39, -95, 0)),  # 36
    Part.LineSegment(Vector(39, -95, 0), Vector(39, -89, 0)),  # 37
    Part.LineSegment(Vector(39, -89, 0), Vector(53, -89, 0)),  # 38
    Part.LineSegment(Vector(53, -89, 0), Vector(53, -95, 0)),  # 39
    Part.LineSegment(Vector(27, -95, 0), Vector(13, -95, 0)),  # 40
    Part.LineSegment(Vector(13, -95, 0), Vector(13, -89, 0)),  # 41
    Part.LineSegment(Vector(13, -89, 0), Vector(27, -89, 0)),  # 42
    Part.LineSegment(Vector(27, -89, 0), Vector(27, -95, 0)),  # 43
], False)
sketch7.addConstraint([
    Sketcher.Constraint("Coincident", 0, 2, 1, 1),
    Sketcher.Constraint("Coincident", 1, 2, 2, 1),
    Sketcher.Constraint("Coincident", 2, 2, 3, 1),
    Sketcher.Constraint("Coincident", 3, 2, 0, 1),
    Sketcher.Constraint("Coincident", 4, 2, 5, 1),
    Sketcher.Constraint("Coincident", 5, 2, 6, 1),
    Sketcher.Constraint("Coincident", 6, 2, 7, 1),
    Sketcher.Constraint("Coincident", 7, 2, 4, 1),
    Sketcher.Constraint("Coincident", 8, 2, 9, 1),
    Sketcher.Constraint("Coincident", 9, 2, 10, 1),
    Sketcher.Constraint("Coincident", 10, 2, 11, 1),
    Sketcher.Constraint("Coincident", 11, 2, 8, 1),
    Sketcher.Constraint("Coincident", 12, 2, 13, 1),
    Sketcher.Constraint("Coincident", 13, 2, 14, 1),
    Sketcher.Constraint("Coincident", 14, 2, 15, 1),
    Sketcher.Constraint("Coincident", 15, 2, 12, 1),
    Sketcher.Constraint("Coincident", 16, 2, 17, 1),
    Sketcher.Constraint("Coincident", 17, 2, 18, 1),
    Sketcher.Constraint("Coincident", 18, 2, 19, 1),
    Sketcher.Constraint("Coincident", 19, 2, 16, 1),
    Sketcher.Constraint("Coincident", 20, 2, 21, 1),
    Sketcher.Constraint("Coincident", 21, 2, 22, 1),
    Sketcher.Constraint("Coincident", 22, 2, 23, 1),
    Sketcher.Constraint("Coincident", 23, 2, 20, 1),
    Sketcher.Constraint("Coincident", 24, 2, 25, 1),
    Sketcher.Constraint("Coincident", 25, 2, 26, 1),
    Sketcher.Constraint("Coincident", 26, 2, 27, 1),
    Sketcher.Constraint("Coincident", 27, 2, 24, 1),
    Sketcher.Constraint("Coincident", 28, 2, 29, 1),
    Sketcher.Constraint("Coincident", 29, 2, 30, 1),
    Sketcher.Constraint("Coincident", 30, 2, 31, 1),
    Sketcher.Constraint("Coincident", 31, 2, 28, 1),
    Sketcher.Constraint("Coincident", 32, 2, 33, 1),
    Sketcher.Constraint("Coincident", 33, 2, 34, 1),
    Sketcher.Constraint("Coincident", 34, 2, 35, 1),
    Sketcher.Constraint("Coincident", 35, 2, 32, 1),
    Sketcher.Constraint("Coincident", 36, 2, 37, 1),
    Sketcher.Constraint("Coincident", 37, 2, 38, 1),
    Sketcher.Constraint("Coincident", 38, 2, 39, 1),
    Sketcher.Constraint("Coincident", 39, 2, 36, 1),
    Sketcher.Constraint("Coincident", 40, 2, 41, 1),
    Sketcher.Constraint("Coincident", 41, 2, 42, 1),
    Sketcher.Constraint("Coincident", 42, 2, 43, 1),
    Sketcher.Constraint("Coincident", 43, 2, 40, 1),
    Sketcher.Constraint("Horizontal", 0),
    Sketcher.Constraint("Vertical", 1),
    Sketcher.Constraint("Horizontal", 2),
    Sketcher.Constraint("Vertical", 3),
    Sketcher.Constraint("Horizontal", 4),
    Sketcher.Constraint("Vertical", 5),
    Sketcher.Constraint("Horizontal", 6),
    Sketcher.Constraint("Vertical", 7),
    Sketcher.Constraint("Horizontal", 8),
    Sketcher.Constraint("Vertical", 9),
    Sketcher.Constraint("Horizontal", 10),
    Sketcher.Constraint("Vertical", 11),
    Sketcher.Constraint("Horizontal", 12),
    Sketcher.Constraint("Vertical", 13),
    Sketcher.Constraint("Horizontal", 14),
    Sketcher.Constraint("Vertical", 15),
    Sketcher.Constraint("Horizontal", 16),
    Sketcher.Constraint("Vertical", 17),
    Sketcher.Constraint("Horizontal", 18),
    Sketcher.Constraint("Vertical", 19),
    Sketcher.Constraint("Horizontal", 20),
    Sketcher.Constraint("Vertical", 21),
    Sketcher.Constraint("Horizontal", 22),
    Sketcher.Constraint("Vertical", 23),
    Sketcher.Constraint("Horizontal", 24),
    Sketcher.Constraint("Vertical", 25),
    Sketcher.Constraint("Horizontal", 26),
    Sketcher.Constraint("Vertical", 27),
    Sketcher.Constraint("Horizontal", 28),
    Sketcher.Constraint("Vertical", 29),
    Sketcher.Constraint("Horizontal", 30),
    Sketcher.Constraint("Vertical", 31),
    Sketcher.Constraint("Horizontal", 32),
    Sketcher.Constraint("Vertical", 33),
    Sketcher.Constraint("Horizontal", 34),
    Sketcher.Constraint("Vertical", 35),
    Sketcher.Constraint("Horizontal", 36),
    Sketcher.Constraint("Vertical", 37),
    Sketcher.Constraint("Horizontal", 38),
    Sketcher.Constraint("Vertical", 39),
    Sketcher.Constraint("Horizontal", 40),
    Sketcher.Constraint("Vertical", 41),
    Sketcher.Constraint("Horizontal", 42),
    Sketcher.Constraint("Vertical", 43),
    Sketcher.Constraint("Horizontal", 3, 2, 4, 2),
    Sketcher.Constraint("Horizontal", 2, 2, 5, 2),
    Sketcher.Constraint("Horizontal", 7, 2, 8, 2),
    Sketcher.Constraint("Horizontal", 6, 2, 9, 2),
    Sketcher.Constraint("Horizontal", 11, 2, 12, 2),
    Sketcher.Constraint("Horizontal", 10, 2, 13, 2),
    Sketcher.Constraint("Horizontal", 15, 2, 16, 2),
    Sketcher.Constraint("Horizontal", 14, 2, 17, 2),
    Sketcher.Constraint("Horizontal", 19, 2, 20, 2),
    Sketcher.Constraint("Horizontal", 18, 2, 21, 2),
    Sketcher.Constraint("Horizontal", 23, 2, 24, 2),
    Sketcher.Constraint("Horizontal", 22, 2, 25, 2),
    Sketcher.Constraint("Horizontal", 27, 2, 28, 2),
    Sketcher.Constraint("Horizontal", 26, 2, 29, 2),
    Sketcher.Constraint("Horizontal", 31, 2, 32, 2),
    Sketcher.Constraint("Horizontal", 30, 2, 33, 2),
    Sketcher.Constraint("Horizontal", 35, 2, 36, 2),
    Sketcher.Constraint("Horizontal", 34, 2, 37, 2),
    Sketcher.Constraint("Horizontal", 39, 2, 40, 2),
    Sketcher.Constraint("Horizontal", 38, 2, 41, 2),
    Sketcher.Constraint("Equal", 2, 4),
    Sketcher.Constraint("Equal", 6, 8),
    Sketcher.Constraint("Equal", 10, 12),
    Sketcher.Constraint("Equal", 14, 16),
    Sketcher.Constraint("Equal", 18, 20),
    Sketcher.Constraint("Equal", 22, 24),
    Sketcher.Constraint("Equal", 26, 28),
    Sketcher.Constraint("Equal", 30, 32),
    Sketcher.Constraint("Equal", 34, 36),
    Sketcher.Constraint("Equal", 38, 40),
    Sketcher.Constraint("DistanceY", 1, 1, 1, 2, Q("0.25 in")),
    Sketcher.Constraint("DistanceY", 1, 2, -1, 1, Q("3.5 in")),
    Sketcher.Constraint("DistanceX", -1, 1, 2, 2, Q("11.5 in")),
    Sketcher.Constraint("DistanceX", -1, 1, 40, 2, Q("0.5 in")),
    Sketcher.Constraint("DistanceX", 6, 2, 1, 2, Q("0.5 in")),
    Sketcher.Constraint("DistanceX", 10, 2, 5, 2, Q("0.5 in")),
    Sketcher.Constraint("DistanceX", 14, 2, 9, 2, Q("0.5 in")),
    Sketcher.Constraint("DistanceX", 18, 2, 13, 2, Q("0.5 in")),
    Sketcher.Constraint("DistanceX", 22, 2, 17, 2, Q("0.5 in")),
    Sketcher.Constraint("DistanceX", 26, 2, 21, 2, Q("0.5 in")),
    Sketcher.Constraint("DistanceX", 30, 2, 25, 2, Q("0.5 in")),
    Sketcher.Constraint("DistanceX", 34, 2, 29, 2, Q("0.5 in")),
    Sketcher.Constraint("DistanceX", 38, 2, 33, 2, Q("0.5 in")),
    Sketcher.Constraint("DistanceX", 42, 2, 37, 2, Q("0.5 in")),
])
pocket5 = body.newObject("PartDesign::Pocket", "Pocket004")
pocket5.Profile = sketch7
pocket5.Length = Q("0.25 in")
pocket5.Reversed = True
doc.recompute()

mirrored2 = body.newObject("PartDesign::Mirrored", "Mirrored001")
mirrored2.Originals = [pocket5]
mirrored2.MirrorPlane = (doc.getObject("YZ_Plane"), [""])
body.Tip = mirrored2

# Sketch on XY plane
sketch8 = body.newObject("Sketcher::SketchObject", "Sketch007")
sketch8.AttachmentSupport = (doc.getObject("XY_Plane"), [""])
sketch8.MapMode = "FlatFace"
sketch8.AttachmentOffset = App.Placement(Vector(0, 0, -3.75 * 25.4), App.Rotation())
sketch8.addGeometry([
    Part.LineSegment(Vector(135, 32, 0), Vector(135, 25, 0)),  # 0
    Part.LineSegment(Vector(135, 25, 0), Vector(126, 25, 0)),  # 1
    Part.LineSegment(Vector(126, 25, 0), Vector(126, 32, 0)),  # 2
    Part.LineSegment(Vector(126, 32, 0), Vector(135, 32, 0)),  # 3
    Part.LineSegment(Vector(148, 19, 0), Vector(148, 13, 0)),  # 4
    Part.LineSegment(Vector(148, 13, 0), Vector(142, 13, 0)),  # 5
    Part.LineSegment(Vector(142, 13, 0), Vector(142, 19, 0)),  # 6
    Part.LineSegment(Vector(142, 19, 0), Vector(148, 19, 0)),  # 7
    Part.LineSegment(Vector(119, 19, 0), Vector(119, 13, 0)),  # 8
    Part.LineSegment(Vector(119, 13, 0), Vector(112, 13, 0)),  # 9
    Part.LineSegment(Vector(112, 13, 0), Vector(112, 19, 0)),  # 10
    Part.LineSegment(Vector(112, 19, 0), Vector(119, 19, 0)),  # 11
], False)
sketch8.addConstraint([
    Sketcher.Constraint("Coincident", 0, 2, 1, 1),
    Sketcher.Constraint("Coincident", 1, 2, 2, 1),
    Sketcher.Constraint("Coincident", 2, 2, 3, 1),
    Sketcher.Constraint("Coincident", 3, 2, 0, 1),
    Sketcher.Constraint("Coincident", 4, 2, 5, 1),
    Sketcher.Constraint("Coincident", 5, 2, 6, 1),
    Sketcher.Constraint("Coincident", 6, 2, 7, 1),
    Sketcher.Constraint("Coincident", 7, 2, 4, 1),
    Sketcher.Constraint("Coincident", 8, 2, 9, 1),
    Sketcher.Constraint("Coincident", 9, 2, 10, 1),
    Sketcher.Constraint("Coincident", 10, 2, 11, 1),
    Sketcher.Constraint("Coincident", 11, 2, 8, 1),
    Sketcher.Constraint("Vertical", 0),
    Sketcher.Constraint("Horizontal", 1),
    Sketcher.Constraint("Vertical", 2),
    Sketcher.Constraint("Horizontal", 3),
    Sketcher.Constraint("Vertical", 4),
    Sketcher.Constraint("Horizontal", 5),
    Sketcher.Constraint("Vertical", 6),
    Sketcher.Constraint("Horizontal", 7),
    Sketcher.Constraint("Vertical", 8),
    Sketcher.Constraint("Horizontal", 9),
    Sketcher.Constraint("Vertical", 10),
    Sketcher.Constraint("Horizontal", 11),
    Sketcher.Constraint("Horizontal", 5, 2, 8, 2),
    Sketcher.Constraint("Horizontal", 7, 2, 10, 2),
    Sketcher.Constraint("Equal", 7, 9),
    Sketcher.Constraint("Equal", 11, 0),
    Sketcher.Constraint("Equal", 2, 4),
    Sketcher.Constraint("DistanceY", -1, 1, 0, 2, Q("1 in")),
    Sketcher.Constraint("DistanceX", 1, 2, 1, 1, Q("0.38 in")),
    Sketcher.Constraint("DistanceX", 5, 2, 5, 1, Q("0.25 in")),
    Sketcher.Constraint("DistanceY", -1, 1, 4, 2, Q("0.5 in")),
    Sketcher.Constraint("DistanceX", 8, 2, 5, 2, Q("0.915 in")),
    Sketcher.Constraint("DistanceX", 0, 2, 4, 2, Q("0.5175 in")),
    Sketcher.Constraint("DistanceX", -1, 1, 0, 2, 135.168105),
])
pocket6 = body.newObject("PartDesign::Pocket", "Pocket005")
pocket6.Profile = sketch8
pocket6.Type = "ThroughAll"
pocket6.Reversed = True

doc.recompute()
